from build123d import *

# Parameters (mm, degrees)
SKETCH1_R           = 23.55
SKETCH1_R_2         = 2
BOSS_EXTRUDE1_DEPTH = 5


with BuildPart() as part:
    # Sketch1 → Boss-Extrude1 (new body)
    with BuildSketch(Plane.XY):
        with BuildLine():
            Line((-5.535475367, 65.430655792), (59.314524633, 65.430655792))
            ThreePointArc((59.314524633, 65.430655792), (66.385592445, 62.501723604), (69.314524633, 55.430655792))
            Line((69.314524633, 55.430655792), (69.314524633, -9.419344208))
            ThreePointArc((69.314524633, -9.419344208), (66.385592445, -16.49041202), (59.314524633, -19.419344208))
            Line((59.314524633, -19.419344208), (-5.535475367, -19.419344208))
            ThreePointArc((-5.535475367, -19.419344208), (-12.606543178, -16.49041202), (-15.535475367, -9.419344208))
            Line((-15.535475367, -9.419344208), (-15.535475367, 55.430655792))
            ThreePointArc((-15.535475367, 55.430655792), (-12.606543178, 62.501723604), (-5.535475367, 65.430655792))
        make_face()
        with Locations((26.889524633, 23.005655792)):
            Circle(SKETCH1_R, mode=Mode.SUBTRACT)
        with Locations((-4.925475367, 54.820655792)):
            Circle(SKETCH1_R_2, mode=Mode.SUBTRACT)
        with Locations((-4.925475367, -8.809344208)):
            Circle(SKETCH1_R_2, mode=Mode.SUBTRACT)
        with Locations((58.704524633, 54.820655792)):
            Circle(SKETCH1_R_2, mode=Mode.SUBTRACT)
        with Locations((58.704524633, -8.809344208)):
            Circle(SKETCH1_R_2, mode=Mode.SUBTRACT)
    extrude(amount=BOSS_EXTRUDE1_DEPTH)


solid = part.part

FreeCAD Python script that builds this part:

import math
import FreeCAD as App
import Part
import Sketcher

doc = App.newDocument("Part")
body = doc.addObject("PartDesign::Body", "Body")

sketch1 = doc.addObject("Sketcher::SketchObject", "Sketch")
body.addObject(sketch1)
sketch1.AttachmentSupport = (doc.XY_Plane, [""])
sketch1.MapMode = "FlatFace"
sketch1.addGeometry([
    Part.LineSegment(App.Vector(59.314525, 65.430656, 0), App.Vector(-5.535475, 65.430656, 0)),
    Part.ArcOfCircle(Part.Circle(App.Vector(-5.535475, 55.430656, 0), App.Vector(0, 0, 1), 10), math.radians(90), math.radians(180)),
    Part.LineSegment(App.Vector(-15.535475, 55.430656, 0), App.Vector(-15.535475, -9.419344, 0)),
    Part.ArcOfCircle(Part.Circle(App.Vector(-5.535475, -9.419344, 0), App.Vector(0, 0, 1), 10), math.radians(-180), math.radians(-90)),
    Part.LineSegment(App.Vector(-5.535475, -19.419344, 0), App.Vector(59.314525, -19.419344, 0)),
    Part.ArcOfCircle(Part.Circle(App.Vector(59.314525, -9.419344, 0), App.Vector(0, 0, 1), 10), math.radians(-90), math.radians(0)),
    Part.LineSegment(App.Vector(69.314525, -9.419344, 0), App.Vector(69.314525, 55.430656, 0)),
    Part.ArcOfCircle(Part.Circle(App.Vector(59.314525, 55.430656, 0), App.Vector(0, 0, 1), 10), math.radians(0), math.radians(90)),
    Part.Circle(App.Vector(58.704525, -8.809344, 0), App.Vector(0, 0, 1), 2),
    Part.Circle(App.Vector(-4.925475, -8.809344, 0), App.Vector(0, 0, 1), 2),
    Part.Circle(App.Vector(58.704525, 54.820656, 0), App.Vector(0, 0, 1), 2),
    Part.Circle(App.Vector(26.889525, 23.005656, 0), App.Vector(0, 0, 1), 23.55),
    Part.Circle(App.Vector(-4.925475, 54.820656, 0), App.Vector(0, 0, 1), 2),
], False)
sketch1.addConstraint([
    Sketcher.Constraint("Tangent", 0, 2, 1, 1),
    Sketcher.Constraint("Tangent", 1, 2, 2, 1),
    Sketcher.Constraint("Tangent", 2, 2, 3, 1),
    Sketcher.Constraint("Tangent", 3, 2, 4, 1),
    Sketcher.Constraint("Tangent", 4, 2, 5, 1),
    Sketcher.Constraint("Tangent", 5, 2, 6, 1),
    Sketcher.Constraint("Tangent", 6, 2, 7, 1),
    Sketcher.Constraint("Tangent", 7, 2, 0, 1),
    Sketcher.Constraint("Horizontal", 0),
    Sketcher.Constraint("Vertical", 2),
    Sketcher.Constraint("Horizontal", 4),
    Sketcher.Constraint("Vertical", 6),
    Sketcher.Constraint("Equal", 1, 3),
    Sketcher.Constraint("Equal", 3, 5),
    Sketcher.Constraint("Equal", 5, 7),
    Sketcher.Constraint("Equal", 8, 9),
    Sketcher.Constraint("Equal", 9, 10),
    Sketcher.Constraint("Equal", 10, 12),
    Sketcher.Constraint("Horizontal", 8, 3, 9, 3),
    Sketcher.Constraint("Horizontal", 10, 3, 12, 3),
    Sketcher.Constraint("Vertical", 8, 3, 10, 3),
    Sketcher.Constraint("Vertical", 9, 3, 12, 3),
    Sketcher.Constraint("Equal", 4, 2),
    Sketcher.Constraint("Diameter", 8, 4.0),
    Sketcher.Constraint("Radius", 1, 10.0),
    Sketcher.Constraint("Diameter", 11, 47.1),
    Sketcher.Constraint("DistanceX", 0, 2, 0, 1, 64.85),
    Sketcher.Constraint("DistanceX", 8, 3, 5, 3, 0.61),
    Sketcher.Constraint("DistanceY", 5, 3, 8, 3, 0.61),
    Sketcher.Constraint("DistanceX", 3, 3, 9, 3, 0.61),
    Sketcher.Constraint("DistanceY", 10, 3, 7, 3, 0.61),
    Sketcher.Constraint("DistanceX", 11, 3, 8, 3, 31.815),
    Sketcher.Constraint("DistanceY", 8, 3, 11, 3, 31.815),
    Sketcher.Constraint("DistanceX", 1, 3, -1, 1, 5.535475),
    Sketcher.Constraint("DistanceY", -1, 1, 1, 3, 55.430656),
])
pad1 = doc.addObject("PartDesign::Pad", "Pad")
body.addObject(pad1)
pad1.Profile = sketch1
pad1.Length = 5

doc.recompute()
